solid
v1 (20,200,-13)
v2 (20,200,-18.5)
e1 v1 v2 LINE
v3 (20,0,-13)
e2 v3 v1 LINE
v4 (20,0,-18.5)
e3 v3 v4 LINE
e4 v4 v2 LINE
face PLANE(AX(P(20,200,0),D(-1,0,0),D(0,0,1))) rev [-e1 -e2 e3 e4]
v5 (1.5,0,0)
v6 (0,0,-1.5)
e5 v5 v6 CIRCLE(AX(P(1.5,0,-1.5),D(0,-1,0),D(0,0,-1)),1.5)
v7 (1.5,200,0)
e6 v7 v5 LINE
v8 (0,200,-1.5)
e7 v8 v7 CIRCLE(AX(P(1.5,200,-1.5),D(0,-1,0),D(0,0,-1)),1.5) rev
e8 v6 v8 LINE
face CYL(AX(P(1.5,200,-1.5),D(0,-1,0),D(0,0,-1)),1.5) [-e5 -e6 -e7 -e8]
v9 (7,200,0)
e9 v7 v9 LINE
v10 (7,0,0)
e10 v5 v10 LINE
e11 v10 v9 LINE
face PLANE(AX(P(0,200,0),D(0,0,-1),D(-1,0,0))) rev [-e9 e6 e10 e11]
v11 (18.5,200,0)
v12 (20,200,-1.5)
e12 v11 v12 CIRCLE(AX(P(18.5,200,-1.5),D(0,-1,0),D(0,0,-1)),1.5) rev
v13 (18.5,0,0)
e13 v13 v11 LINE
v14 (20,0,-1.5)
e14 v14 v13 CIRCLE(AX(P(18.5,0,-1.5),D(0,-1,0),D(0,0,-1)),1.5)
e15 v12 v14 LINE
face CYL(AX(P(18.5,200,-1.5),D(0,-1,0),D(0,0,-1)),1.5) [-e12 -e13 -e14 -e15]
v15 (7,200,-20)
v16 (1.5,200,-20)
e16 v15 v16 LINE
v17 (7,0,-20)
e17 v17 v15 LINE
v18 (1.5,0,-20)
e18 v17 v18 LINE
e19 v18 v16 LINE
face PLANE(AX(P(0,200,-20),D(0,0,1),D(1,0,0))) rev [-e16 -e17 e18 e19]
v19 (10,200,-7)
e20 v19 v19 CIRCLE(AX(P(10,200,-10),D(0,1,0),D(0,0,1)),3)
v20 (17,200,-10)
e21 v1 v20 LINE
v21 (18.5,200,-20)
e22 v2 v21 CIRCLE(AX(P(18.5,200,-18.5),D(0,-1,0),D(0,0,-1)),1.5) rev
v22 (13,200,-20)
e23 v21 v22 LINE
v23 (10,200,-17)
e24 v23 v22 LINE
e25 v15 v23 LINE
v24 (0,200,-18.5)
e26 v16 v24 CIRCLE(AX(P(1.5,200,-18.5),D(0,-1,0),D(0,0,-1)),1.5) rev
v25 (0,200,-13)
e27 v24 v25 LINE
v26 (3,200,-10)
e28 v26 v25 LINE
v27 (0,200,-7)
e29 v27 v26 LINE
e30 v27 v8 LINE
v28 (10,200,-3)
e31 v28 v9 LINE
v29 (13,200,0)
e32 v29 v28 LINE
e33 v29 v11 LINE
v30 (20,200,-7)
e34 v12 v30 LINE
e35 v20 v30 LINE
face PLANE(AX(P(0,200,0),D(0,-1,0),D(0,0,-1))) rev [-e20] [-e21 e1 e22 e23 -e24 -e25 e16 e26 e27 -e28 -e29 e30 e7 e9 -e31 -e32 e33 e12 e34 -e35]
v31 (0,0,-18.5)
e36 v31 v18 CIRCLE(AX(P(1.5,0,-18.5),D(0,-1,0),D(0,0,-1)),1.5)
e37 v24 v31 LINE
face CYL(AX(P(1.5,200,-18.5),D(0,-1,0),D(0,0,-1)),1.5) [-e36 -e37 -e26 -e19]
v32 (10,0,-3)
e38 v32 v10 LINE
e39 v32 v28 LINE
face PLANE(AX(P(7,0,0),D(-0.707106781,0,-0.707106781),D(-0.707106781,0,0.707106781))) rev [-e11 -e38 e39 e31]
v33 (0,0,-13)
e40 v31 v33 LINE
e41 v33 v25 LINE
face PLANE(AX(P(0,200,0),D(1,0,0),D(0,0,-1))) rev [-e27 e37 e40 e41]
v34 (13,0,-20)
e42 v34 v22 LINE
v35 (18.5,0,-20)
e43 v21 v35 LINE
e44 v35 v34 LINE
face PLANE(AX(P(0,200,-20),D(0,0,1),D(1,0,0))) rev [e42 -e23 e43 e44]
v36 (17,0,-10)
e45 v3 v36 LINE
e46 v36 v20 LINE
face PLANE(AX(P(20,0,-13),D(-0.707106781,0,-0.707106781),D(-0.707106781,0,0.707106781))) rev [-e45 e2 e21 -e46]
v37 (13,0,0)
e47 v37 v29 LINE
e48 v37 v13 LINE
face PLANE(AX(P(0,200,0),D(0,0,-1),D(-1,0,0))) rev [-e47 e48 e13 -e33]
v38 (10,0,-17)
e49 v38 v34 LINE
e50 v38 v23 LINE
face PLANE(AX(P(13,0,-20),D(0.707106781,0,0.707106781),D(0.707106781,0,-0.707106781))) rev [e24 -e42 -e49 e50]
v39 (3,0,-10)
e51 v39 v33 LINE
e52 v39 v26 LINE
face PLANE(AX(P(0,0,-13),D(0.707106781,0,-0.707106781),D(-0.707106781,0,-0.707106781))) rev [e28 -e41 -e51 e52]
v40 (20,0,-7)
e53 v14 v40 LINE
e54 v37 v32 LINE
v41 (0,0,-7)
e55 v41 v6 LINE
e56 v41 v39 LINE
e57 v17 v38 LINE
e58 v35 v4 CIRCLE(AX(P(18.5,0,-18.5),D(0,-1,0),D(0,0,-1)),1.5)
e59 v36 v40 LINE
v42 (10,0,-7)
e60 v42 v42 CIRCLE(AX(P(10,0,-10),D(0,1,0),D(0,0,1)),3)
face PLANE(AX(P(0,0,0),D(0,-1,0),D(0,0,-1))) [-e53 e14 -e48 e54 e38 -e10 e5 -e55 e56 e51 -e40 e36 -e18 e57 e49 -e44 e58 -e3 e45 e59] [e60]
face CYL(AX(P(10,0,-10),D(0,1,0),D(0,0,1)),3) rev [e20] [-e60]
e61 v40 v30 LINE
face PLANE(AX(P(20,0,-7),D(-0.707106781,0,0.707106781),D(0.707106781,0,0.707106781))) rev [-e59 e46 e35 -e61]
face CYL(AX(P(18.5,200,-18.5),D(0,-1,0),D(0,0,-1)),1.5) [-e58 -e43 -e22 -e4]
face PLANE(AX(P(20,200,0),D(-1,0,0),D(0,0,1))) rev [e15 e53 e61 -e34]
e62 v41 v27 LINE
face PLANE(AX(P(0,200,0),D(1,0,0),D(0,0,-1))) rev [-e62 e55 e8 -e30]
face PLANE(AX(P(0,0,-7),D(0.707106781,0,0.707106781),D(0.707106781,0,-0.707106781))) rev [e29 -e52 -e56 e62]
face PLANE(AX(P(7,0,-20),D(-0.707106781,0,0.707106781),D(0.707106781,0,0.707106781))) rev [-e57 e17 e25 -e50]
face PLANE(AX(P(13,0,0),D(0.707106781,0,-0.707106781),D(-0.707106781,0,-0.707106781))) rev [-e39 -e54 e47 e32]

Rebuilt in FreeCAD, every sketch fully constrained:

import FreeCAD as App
import Part
import Sketcher


def edges_at(feature, points):
    """Names of the edges that pass closest to the given points."""
    edges = feature.Shape.Edges
    near = lambda p: min(range(len(edges)), key=lambda i: edges[i].distToShape(Part.Vertex(*p))[0])
    return sorted({f"Edge{near(p) + 1}" for p in points})


def add_polygon(sketch, points):
    """Adds a closed chain of lines whose ends are joined by coincident constraints."""
    first, n = sketch.GeometryCount, len(points)
    for a, b in zip(points, points[1:] + points[:1]):
        sketch.addGeometry(Part.LineSegment(App.Vector(*a, 0), App.Vector(*b, 0)), False)
    for i in range(n):
        sketch.addConstraint(Sketcher.Constraint("Coincident", first + i, 2, first + (i + 1) % n, 1))

doc = App.newDocument("Part")
body = doc.addObject("PartDesign::Body", "Body")

# Sketch on XZ plane
sketch1 = body.newObject("Sketcher::SketchObject", "Sketch")
sketch1.AttachmentSupport = (doc.getObject("XZ_Plane"), [""])
sketch1.MapMode = "FlatFace"
add_polygon(sketch1, [(0, -20), (0, 0), (20, 0), (20, -20)])  # lines 0-3
sketch1.addConstraint(Sketcher.Constraint("Vertical", 0))
sketch1.addConstraint(Sketcher.Constraint("Horizontal", 1))
sketch1.addConstraint(Sketcher.Constraint("Vertical", 2))
sketch1.addConstraint(Sketcher.Constraint("Horizontal", 3))
sketch1.addConstraint(Sketcher.Constraint("Coincident", 0, 2, -1, 1))
sketch1.addConstraint(Sketcher.Constraint("Equal", 3, 0))
sketch1.addConstraint(Sketcher.Constraint("DistanceX", 1, 1, 1, 2, 20.0))
pad1 = body.newObject("PartDesign::Pad", "Pad")
pad1.Profile = sketch1
pad1.Length = 200
pad1.Reversed = True

# Sketch on XZ plane
sketch2 = body.newObject("Sketcher::SketchObject", "Sketch001")
sketch2.AttachmentSupport = (doc.getObject("XZ_Plane"), [""])
sketch2.MapMode = "FlatFace"
sketch2.AttachmentOffset = App.Placement(App.Vector(0, 0, -200), App.Rotation())
add_polygon(sketch2, [(7, -20), (10, -17), (13, -20)])  # lines 0-2
add_polygon(sketch2, [(20, -13), (17, -10), (20, -7)])  # lines 3-5
add_polygon(sketch2, [(0, -13), (0, -7), (3, -10)])  # lines 6-8
add_polygon(sketch2, [(7, 0), (13, 0), (10, -3)])  # lines 9-11
sketch2.addConstraint(Sketcher.Constraint("Horizontal", 2))
sketch2.addConstraint(Sketcher.Constraint("Vertical", 5))
sketch2.addConstraint(Sketcher.Constraint("Vertical", 6))
sketch2.addConstraint(Sketcher.Constraint("Horizontal", 9))
sketch2.addConstraint(Sketcher.Constraint("PointOnObject", 6, 2, -2))
sketch2.addConstraint(Sketcher.Constraint("PointOnObject", 9, 2, -1))
sketch2.addConstraint(Sketcher.Constraint("Perpendicular", 0, 1))
sketch2.addConstraint(Sketcher.Constraint("Parallel", 1, 3))
sketch2.addConstraint(Sketcher.Constraint("Perpendicular", 3, 4))
sketch2.addConstraint(Sketcher.Constraint("Perpendicular", 4, 7))
sketch2.addConstraint(Sketcher.Constraint("Perpendicular", 7, 8))
sketch2.addConstraint(Sketcher.Constraint("Parallel", 8, 10))
sketch2.addConstraint(Sketcher.Constraint("Perpendicular", 10, 11))
sketch2.addConstraint(Sketcher.Constraint("Horizontal", 4, 2, 6, 2))
sketch2.addConstraint(Sketcher.Constraint("Horizontal", 3, 2, 7, 2))
sketch2.addConstraint(Sketcher.Constraint("Horizontal", 5, 2, 8, 2))
sketch2.addConstraint(Sketcher.Constraint("Vertical", 1, 2, 9, 2))
sketch2.addConstraint(Sketcher.Constraint("Vertical", 0, 2, 10, 2))
sketch2.addConstraint(Sketcher.Constraint("Equal", 9, 5))
sketch2.addConstraint(Sketcher.Constraint("DistanceX", 2, 2, 2, 1, 6.0))
sketch2.addConstraint(Sketcher.Constraint("DistanceX", -1, 1, 0, 2, 10.0))
sketch2.addConstraint(Sketcher.Constraint("DistanceY", 0, 2, -1, 1, 17.0))
sketch2.addConstraint(Sketcher.Constraint("DistanceX", -1, 1, 3, 2, 17.0))
sketch2.addConstraint(Sketcher.Constraint("DistanceY", 3, 2, -1, 1, 10.0))
pocket1 = body.newObject("PartDesign::Pocket", "Pocket")
pocket1.Profile = sketch2
pocket1.Type = "ThroughAll"
pocket1.Reversed = True

# Sketch on XZ plane
sketch3 = body.newObject("Sketcher::SketchObject", "Sketch002")
sketch3.AttachmentSupport = (doc.getObject("XZ_Plane"), [""])
sketch3.MapMode = "FlatFace"
sketch3.AttachmentOffset = App.Placement(App.Vector(0, 0, -200), App.Rotation())
sketch3.addGeometry(Part.Circle(App.Vector(10, -10, 0), App.Vector(0, 0, 1), 3), False)
sketch3.addConstraint(Sketcher.Constraint("Diameter", 0, 6.0))
sketch3.addConstraint(Sketcher.Constraint("DistanceX", -1, 1, 0, 3, 10.0))
sketch3.addConstraint(Sketcher.Constraint("DistanceY", 0, 3, -1, 1, 10.0))
pocket2 = body.newObject("PartDesign::Pocket", "Pocket001")
pocket2.Profile = sketch3
pocket2.Type = "ThroughAll"
pocket2.Reversed = True
doc.recompute()

fillet = body.newObject("PartDesign::Fillet", "Fillet")
fillet.Base = (pocket2, edges_at(pocket2, [
    (0, 100, -20),
    (20, 100, -20),
    (20, 100, 0),
    (0, 100, 0),
]))
fillet.Radius = 1.5

doc.recompute()
